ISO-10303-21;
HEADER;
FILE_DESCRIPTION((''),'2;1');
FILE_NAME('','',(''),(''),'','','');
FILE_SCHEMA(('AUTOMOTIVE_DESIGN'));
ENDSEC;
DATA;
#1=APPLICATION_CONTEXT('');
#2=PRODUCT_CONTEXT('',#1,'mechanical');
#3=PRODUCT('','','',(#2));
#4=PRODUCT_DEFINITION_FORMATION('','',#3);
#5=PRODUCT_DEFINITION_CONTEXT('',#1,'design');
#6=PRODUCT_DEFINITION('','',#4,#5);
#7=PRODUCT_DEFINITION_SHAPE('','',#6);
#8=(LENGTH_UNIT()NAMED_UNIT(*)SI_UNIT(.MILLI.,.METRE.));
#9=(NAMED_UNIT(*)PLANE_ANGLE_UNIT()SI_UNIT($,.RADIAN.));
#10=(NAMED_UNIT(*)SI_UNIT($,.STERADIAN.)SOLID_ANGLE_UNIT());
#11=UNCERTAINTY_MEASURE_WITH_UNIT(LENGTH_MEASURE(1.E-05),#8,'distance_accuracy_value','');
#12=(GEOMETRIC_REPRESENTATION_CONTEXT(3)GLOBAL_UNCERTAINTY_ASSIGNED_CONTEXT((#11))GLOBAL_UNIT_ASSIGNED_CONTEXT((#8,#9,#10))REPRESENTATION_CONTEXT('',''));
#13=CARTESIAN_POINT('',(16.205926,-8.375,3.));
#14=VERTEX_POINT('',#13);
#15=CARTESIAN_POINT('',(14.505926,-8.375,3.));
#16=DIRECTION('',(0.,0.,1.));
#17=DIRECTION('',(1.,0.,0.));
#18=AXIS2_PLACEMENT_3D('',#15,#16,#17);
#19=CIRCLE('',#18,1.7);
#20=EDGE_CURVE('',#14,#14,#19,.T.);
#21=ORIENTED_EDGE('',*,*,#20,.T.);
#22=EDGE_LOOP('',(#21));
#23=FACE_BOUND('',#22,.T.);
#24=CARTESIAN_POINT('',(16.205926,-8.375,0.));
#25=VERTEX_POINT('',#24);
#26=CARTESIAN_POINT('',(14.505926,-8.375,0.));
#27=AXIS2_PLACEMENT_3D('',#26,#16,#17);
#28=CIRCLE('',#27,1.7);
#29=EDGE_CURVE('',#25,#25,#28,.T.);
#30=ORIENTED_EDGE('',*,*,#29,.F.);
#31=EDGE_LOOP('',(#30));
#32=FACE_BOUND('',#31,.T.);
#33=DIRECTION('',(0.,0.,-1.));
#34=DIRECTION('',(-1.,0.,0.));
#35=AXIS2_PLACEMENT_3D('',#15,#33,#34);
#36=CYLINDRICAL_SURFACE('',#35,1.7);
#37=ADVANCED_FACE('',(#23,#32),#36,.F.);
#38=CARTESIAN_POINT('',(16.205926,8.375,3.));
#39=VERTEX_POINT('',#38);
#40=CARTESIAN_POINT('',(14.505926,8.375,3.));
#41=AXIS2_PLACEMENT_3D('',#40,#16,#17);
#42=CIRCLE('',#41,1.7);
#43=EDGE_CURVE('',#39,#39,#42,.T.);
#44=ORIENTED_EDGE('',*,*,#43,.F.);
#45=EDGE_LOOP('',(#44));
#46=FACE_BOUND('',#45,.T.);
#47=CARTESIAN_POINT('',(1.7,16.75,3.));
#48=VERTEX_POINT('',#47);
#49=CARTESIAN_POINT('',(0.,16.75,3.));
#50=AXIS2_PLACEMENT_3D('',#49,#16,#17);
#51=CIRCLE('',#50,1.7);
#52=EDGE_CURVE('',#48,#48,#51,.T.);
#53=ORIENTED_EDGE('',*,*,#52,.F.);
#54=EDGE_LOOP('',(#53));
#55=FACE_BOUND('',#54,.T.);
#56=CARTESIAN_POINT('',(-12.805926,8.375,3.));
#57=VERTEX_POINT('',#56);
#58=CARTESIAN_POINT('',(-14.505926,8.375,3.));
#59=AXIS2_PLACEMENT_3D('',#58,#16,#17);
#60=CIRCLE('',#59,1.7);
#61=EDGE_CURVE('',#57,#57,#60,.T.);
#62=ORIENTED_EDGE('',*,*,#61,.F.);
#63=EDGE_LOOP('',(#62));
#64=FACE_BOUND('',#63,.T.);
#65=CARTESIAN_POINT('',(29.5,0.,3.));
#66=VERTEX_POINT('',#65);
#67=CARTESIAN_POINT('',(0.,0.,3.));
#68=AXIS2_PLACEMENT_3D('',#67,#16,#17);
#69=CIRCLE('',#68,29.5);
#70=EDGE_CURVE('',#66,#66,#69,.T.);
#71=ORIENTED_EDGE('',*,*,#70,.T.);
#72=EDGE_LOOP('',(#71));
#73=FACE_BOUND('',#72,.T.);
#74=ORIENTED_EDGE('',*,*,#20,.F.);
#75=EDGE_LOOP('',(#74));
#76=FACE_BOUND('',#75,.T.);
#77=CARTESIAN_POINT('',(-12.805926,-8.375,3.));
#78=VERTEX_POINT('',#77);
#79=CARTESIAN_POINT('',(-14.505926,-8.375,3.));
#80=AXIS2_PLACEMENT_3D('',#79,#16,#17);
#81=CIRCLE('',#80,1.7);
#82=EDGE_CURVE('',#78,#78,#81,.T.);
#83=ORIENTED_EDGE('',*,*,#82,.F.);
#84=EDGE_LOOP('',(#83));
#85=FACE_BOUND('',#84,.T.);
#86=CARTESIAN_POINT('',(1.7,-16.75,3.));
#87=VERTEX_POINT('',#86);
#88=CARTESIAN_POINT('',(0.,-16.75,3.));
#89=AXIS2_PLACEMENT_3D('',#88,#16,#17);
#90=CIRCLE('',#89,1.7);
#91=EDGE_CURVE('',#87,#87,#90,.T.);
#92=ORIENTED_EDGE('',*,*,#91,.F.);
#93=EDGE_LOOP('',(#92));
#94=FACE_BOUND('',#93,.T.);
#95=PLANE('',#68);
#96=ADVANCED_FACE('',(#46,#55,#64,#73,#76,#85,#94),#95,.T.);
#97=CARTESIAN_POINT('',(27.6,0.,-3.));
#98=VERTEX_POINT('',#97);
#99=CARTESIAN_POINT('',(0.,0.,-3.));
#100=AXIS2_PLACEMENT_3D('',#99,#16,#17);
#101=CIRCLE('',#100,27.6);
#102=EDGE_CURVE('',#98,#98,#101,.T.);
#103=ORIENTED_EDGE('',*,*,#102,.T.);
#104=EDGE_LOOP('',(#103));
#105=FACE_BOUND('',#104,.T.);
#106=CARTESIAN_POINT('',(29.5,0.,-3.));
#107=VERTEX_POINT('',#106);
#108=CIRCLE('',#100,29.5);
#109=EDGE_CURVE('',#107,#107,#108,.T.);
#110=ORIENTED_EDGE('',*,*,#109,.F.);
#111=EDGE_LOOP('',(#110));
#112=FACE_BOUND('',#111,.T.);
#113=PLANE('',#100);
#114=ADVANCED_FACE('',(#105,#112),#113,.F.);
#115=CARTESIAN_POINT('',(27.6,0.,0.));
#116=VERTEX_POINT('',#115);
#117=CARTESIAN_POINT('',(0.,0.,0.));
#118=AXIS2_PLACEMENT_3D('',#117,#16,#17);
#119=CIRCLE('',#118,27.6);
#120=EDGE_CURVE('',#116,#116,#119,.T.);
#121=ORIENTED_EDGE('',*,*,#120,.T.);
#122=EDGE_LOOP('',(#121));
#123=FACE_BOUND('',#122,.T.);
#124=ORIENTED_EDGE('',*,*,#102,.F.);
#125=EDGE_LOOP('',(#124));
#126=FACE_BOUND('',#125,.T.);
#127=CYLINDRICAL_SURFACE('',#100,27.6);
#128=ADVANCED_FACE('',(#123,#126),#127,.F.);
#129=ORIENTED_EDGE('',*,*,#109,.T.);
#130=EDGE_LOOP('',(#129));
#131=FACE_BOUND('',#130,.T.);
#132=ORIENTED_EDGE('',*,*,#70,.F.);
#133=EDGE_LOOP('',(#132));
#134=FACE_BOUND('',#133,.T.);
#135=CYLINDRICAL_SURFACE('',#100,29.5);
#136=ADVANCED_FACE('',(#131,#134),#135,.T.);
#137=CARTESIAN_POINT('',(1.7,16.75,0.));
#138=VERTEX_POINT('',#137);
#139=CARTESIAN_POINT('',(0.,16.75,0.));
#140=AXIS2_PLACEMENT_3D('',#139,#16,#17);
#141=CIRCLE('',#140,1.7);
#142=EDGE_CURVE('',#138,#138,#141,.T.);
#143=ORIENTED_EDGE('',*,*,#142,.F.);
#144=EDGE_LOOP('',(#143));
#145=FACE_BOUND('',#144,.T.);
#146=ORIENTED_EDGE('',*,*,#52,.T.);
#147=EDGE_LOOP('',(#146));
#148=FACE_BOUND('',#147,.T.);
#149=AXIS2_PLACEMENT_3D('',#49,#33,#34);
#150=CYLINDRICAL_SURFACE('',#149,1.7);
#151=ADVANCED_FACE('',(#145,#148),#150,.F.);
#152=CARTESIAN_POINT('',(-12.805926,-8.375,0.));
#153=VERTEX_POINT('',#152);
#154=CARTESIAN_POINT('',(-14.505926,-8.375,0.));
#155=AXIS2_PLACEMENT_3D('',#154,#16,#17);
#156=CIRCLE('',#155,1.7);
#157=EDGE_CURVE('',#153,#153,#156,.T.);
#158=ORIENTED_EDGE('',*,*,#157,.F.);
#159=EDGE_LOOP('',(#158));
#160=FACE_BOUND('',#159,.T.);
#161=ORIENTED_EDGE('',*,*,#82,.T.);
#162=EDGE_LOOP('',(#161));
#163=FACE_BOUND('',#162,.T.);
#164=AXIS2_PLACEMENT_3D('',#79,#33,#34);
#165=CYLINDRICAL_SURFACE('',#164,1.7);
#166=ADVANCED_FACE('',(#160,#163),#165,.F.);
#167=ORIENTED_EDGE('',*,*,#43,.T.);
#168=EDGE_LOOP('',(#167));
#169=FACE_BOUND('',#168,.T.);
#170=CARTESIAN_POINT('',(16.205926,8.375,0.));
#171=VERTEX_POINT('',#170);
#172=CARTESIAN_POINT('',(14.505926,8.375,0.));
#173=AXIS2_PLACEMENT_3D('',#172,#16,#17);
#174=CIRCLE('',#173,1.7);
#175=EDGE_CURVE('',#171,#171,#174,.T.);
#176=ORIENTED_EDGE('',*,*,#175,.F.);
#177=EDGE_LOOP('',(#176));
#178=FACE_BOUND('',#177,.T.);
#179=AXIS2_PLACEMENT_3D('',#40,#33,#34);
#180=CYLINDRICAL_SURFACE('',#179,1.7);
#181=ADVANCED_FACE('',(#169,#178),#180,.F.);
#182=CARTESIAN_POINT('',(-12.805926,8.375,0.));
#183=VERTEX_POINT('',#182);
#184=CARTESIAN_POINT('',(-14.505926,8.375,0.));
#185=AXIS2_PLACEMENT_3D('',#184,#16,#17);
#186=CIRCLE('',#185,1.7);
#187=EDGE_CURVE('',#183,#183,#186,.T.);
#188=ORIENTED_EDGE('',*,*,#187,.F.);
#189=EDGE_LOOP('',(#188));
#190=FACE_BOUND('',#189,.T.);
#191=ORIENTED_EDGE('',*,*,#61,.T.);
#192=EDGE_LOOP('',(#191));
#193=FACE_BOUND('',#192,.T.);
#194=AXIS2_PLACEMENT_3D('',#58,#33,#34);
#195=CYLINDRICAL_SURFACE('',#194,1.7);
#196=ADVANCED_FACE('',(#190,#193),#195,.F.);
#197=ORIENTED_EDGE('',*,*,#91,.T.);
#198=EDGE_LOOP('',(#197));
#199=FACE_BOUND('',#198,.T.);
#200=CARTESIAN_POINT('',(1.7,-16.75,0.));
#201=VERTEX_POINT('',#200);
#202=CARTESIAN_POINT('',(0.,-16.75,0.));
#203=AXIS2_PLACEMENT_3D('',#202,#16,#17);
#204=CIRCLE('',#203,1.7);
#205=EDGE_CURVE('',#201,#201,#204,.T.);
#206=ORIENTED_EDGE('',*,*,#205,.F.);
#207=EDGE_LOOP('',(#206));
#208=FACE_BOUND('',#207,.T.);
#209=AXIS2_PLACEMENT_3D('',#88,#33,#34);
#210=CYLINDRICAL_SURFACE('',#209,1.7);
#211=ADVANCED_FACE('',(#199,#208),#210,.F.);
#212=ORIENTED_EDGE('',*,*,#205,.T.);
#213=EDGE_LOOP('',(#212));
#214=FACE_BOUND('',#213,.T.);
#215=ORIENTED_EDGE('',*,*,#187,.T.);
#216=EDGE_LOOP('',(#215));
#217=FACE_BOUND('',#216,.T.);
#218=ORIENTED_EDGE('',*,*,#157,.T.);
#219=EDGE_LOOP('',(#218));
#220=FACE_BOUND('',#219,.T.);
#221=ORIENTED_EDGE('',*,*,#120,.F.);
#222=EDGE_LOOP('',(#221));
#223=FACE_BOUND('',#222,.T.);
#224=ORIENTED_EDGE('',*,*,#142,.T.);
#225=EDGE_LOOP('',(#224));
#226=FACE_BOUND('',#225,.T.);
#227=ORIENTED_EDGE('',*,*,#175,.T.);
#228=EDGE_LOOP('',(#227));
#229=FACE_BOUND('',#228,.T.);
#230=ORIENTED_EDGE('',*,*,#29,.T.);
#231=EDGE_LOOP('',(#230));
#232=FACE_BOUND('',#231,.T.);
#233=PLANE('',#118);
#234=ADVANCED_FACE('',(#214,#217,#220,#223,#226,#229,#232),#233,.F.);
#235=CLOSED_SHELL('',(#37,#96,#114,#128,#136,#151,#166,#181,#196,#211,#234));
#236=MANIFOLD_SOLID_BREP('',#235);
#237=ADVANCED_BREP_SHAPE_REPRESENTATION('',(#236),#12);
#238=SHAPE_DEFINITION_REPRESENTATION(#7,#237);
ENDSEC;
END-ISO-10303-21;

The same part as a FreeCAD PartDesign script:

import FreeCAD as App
import Part
import Sketcher

V = App.Vector
Q = App.Units.Quantity

doc = App.newDocument("Part")
params = doc.addObject("Spreadsheet::Sheet", "Params")
for row, (alias, value) in enumerate([
    ("sketch1_diameter", "55.2 mm"),
    ("sketch1_diameter2", "3.4 mm"),
    ("pad1_length", "3 mm"),
    ("sketch2_diameter", "59 mm"),
    ("sketch2_diameter2", "55.2 mm"),
    ("pad2_length", "6 mm"),
], start=1):
    params.set(f"A{row}", alias)
    params.set(f"B{row}", "=" + value)
    params.setAlias(f"B{row}", alias)

body = doc.addObject("PartDesign::Body", "Body")

sketch1 = doc.addObject("Sketcher::SketchObject", "Sketch")
body.addObject(sketch1)
sketch1.AttachmentSupport = (doc.XY_Plane, [""])
sketch1.MapMode = "FlatFace"
sketch1.addGeometry([
    Part.Circle(V(0, 0, 0), V(0, 0, 1), 27.6),
    Part.Circle(V(-14.505926, -8.375, 0), V(0, 0, 1), 1.7),
    Part.Circle(V(0, -16.75, 0), V(0, 0, 1), 1.7),
    Part.Circle(V(14.505926, -8.375, 0), V(0, 0, 1), 1.7),
    Part.Circle(V(-14.505926, 8.375, 0), V(0, 0, 1), 1.7),
    Part.Circle(V(14.505926, 8.375, 0), V(0, 0, 1), 1.7),
    Part.Circle(V(0, 16.75, 0), V(0, 0, 1), 1.7),
], False)
sketch1.addConstraint([
    Sketcher.Constraint("Coincident", 0, 3, -1, 1),
    Sketcher.Constraint("Equal", 1, 2),
    Sketcher.Constraint("Equal", 2, 3),
    Sketcher.Constraint("Equal", 3, 4),
    Sketcher.Constraint("Equal", 4, 5),
    Sketcher.Constraint("Equal", 5, 6),
    Sketcher.Constraint("Symmetric", 3, 3, 4, 3, -1, 1),
    Sketcher.Constraint("Symmetric", 1, 3, 5, 3, -1, 1),
    Sketcher.Constraint("Symmetric", 2, 3, 6, 3, -1, 1),
    Sketcher.Constraint("Symmetric", 1, 3, 3, 3, -2),
    Sketcher.Constraint("PointOnObject", 2, 3, -2),
    Sketcher.Constraint("Diameter", 0, Q("55.2 mm")),
    Sketcher.Constraint("Diameter", 1, Q("3.4 mm")),
    Sketcher.Constraint("DistanceY", 2, 3, -1, 1, Q("16.75 mm")),
    Sketcher.Constraint("DistanceY", 1, 3, 4, 3, Q("16.75 mm")),
    Sketcher.Constraint("DistanceX", 1, 3, 3, 3, Q("29.011851 mm")),
])
sketch1.setExpression("Constraints[11]", "Params.sketch1_diameter")
sketch1.setExpression("Constraints[12]", "Params.sketch1_diameter2")
pad1 = doc.addObject("PartDesign::Pad", "Pad")
body.addObject(pad1)
pad1.Profile = sketch1
pad1.setExpression("Length", "Params.pad1_length")

sketch2 = doc.addObject("Sketcher::SketchObject", "Sketch001")
body.addObject(sketch2)
sketch2.AttachmentSupport = (doc.XY_Plane, [""])
sketch2.MapMode = "FlatFace"
sketch2.AttachmentOffset = App.Placement(V(0, 0, -3), App.Rotation())
sketch2.addGeometry([
    Part.Circle(V(0, 0, 0), V(0, 0, 1), 29.5),
    Part.Circle(V(0, 0, 0), V(0, 0, 1), 27.6),
], False)
sketch2.addConstraint([
    Sketcher.Constraint("Coincident", 0, 3, -1, 1),
    Sketcher.Constraint("Coincident", 1, 3, -1, 1),
    Sketcher.Constraint("Diameter", 0, Q("59 mm")),
    Sketcher.Constraint("Diameter", 1, Q("55.2 mm")),
])
sketch2.setExpression("Constraints[2]", "Params.sketch2_diameter")
sketch2.setExpression("Constraints[3]", "Params.sketch2_diameter2")
pad2 = doc.addObject("PartDesign::Pad", "Pad001")
body.addObject(pad2)
pad2.Profile = sketch2
pad2.setExpression("Length", "Params.pad2_length")

doc.recompute()
